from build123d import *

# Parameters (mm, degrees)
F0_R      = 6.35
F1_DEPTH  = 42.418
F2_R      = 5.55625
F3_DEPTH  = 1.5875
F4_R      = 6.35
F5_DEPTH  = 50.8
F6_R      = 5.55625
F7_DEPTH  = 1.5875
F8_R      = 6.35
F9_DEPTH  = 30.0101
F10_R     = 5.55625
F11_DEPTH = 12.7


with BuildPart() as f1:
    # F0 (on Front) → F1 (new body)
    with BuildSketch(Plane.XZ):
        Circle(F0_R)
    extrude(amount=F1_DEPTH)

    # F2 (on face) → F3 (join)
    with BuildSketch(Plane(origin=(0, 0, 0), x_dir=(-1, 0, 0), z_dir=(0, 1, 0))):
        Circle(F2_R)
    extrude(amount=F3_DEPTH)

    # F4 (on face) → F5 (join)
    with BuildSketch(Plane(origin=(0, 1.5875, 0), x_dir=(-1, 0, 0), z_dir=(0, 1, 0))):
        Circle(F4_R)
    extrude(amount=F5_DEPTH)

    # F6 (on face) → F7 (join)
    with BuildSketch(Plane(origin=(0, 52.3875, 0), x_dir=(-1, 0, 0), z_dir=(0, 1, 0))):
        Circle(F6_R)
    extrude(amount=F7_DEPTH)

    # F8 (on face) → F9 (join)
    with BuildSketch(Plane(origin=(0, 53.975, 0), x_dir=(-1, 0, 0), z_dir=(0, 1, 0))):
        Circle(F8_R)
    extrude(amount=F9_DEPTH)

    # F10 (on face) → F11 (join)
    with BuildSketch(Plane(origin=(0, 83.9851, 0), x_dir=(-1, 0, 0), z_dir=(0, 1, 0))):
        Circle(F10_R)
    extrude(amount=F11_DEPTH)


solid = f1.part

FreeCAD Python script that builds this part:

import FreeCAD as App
import Part
import Sketcher
from FreeCAD import Vector
Q = App.Units.Quantity

doc = App.newDocument("Part")
body = doc.addObject("PartDesign::Body", "Body")

# Sketch on XZ plane
sketch1 = doc.addObject("Sketcher::SketchObject", "Sketch")
body.addObject(sketch1)
sketch1.AttachmentSupport = (doc.XZ_Plane, [""])
sketch1.MapMode = "FlatFace"
sketch1.addGeometry(Part.Circle(Vector(0, 0, 0), Vector(0, 0, 1), 6), False)
sketch1.addConstraint([
    Sketcher.Constraint("Coincident", 0, 3, -1, 1),
    Sketcher.Constraint("Diameter", 0, Q("0.5 in")),
])
pad1 = doc.addObject("PartDesign::Pad", "Pad")
body.addObject(pad1)
pad1.Profile = sketch1
pad1.Length = Q("1.67 in")

# Sketch on XZ plane
sketch2 = doc.addObject("Sketcher::SketchObject", "Sketch001")
body.addObject(sketch2)
sketch2.AttachmentSupport = (doc.XZ_Plane, [""])
sketch2.MapMode = "FlatFace"
sketch2.addGeometry(Part.Circle(Vector(0, 0, 0), Vector(0, 0, 1), 6), False)
sketch2.addConstraint([
    Sketcher.Constraint("Coincident", 0, 3, -1, 1),
    Sketcher.Constraint("Diameter", 0, Q("0.4375 in")),
])
pad2 = doc.addObject("PartDesign::Pad", "Pad001")
body.addObject(pad2)
pad2.Profile = sketch2
pad2.Length = Q("0.0625 in")
pad2.Reversed = True

# Sketch on XZ plane
sketch3 = doc.addObject("Sketcher::SketchObject", "Sketch002")
body.addObject(sketch3)
sketch3.AttachmentSupport = (doc.XZ_Plane, [""])
sketch3.MapMode = "FlatFace"
sketch3.AttachmentOffset = App.Placement(Vector(0, 0, -0.0625 * 25.4), App.Rotation())
sketch3.addGeometry(Part.Circle(Vector(0, 0, 0), Vector(0, 0, 1), 6), False)
sketch3.addConstraint([
    Sketcher.Constraint("Coincident", 0, 3, -1, 1),
    Sketcher.Constraint("Diameter", 0, Q("0.5 in")),
])
pad3 = doc.addObject("PartDesign::Pad", "Pad002")
body.addObject(pad3)
pad3.Profile = sketch3
pad3.Length = Q("2 in")
pad3.Reversed = True

# Sketch on XZ plane
sketch4 = doc.addObject("Sketcher::SketchObject", "Sketch003")
body.addObject(sketch4)
sketch4.AttachmentSupport = (doc.XZ_Plane, [""])
sketch4.MapMode = "FlatFace"
sketch4.AttachmentOffset = App.Placement(Vector(0, 0, -2.0625 * 25.4), App.Rotation())
sketch4.addGeometry(Part.Circle(Vector(0, 0, 0), Vector(0, 0, 1), 6), False)
sketch4.addConstraint([
    Sketcher.Constraint("Coincident", 0, 3, -1, 1),
    Sketcher.Constraint("Diameter", 0, Q("0.4375 in")),
])
pad4 = doc.addObject("PartDesign::Pad", "Pad003")
body.addObject(pad4)
pad4.Profile = sketch4
pad4.Length = Q("0.0625 in")
pad4.Reversed = True

# Sketch on XZ plane
sketch5 = doc.addObject("Sketcher::SketchObject", "Sketch004")
body.addObject(sketch5)
sketch5.AttachmentSupport = (doc.XZ_Plane, [""])
sketch5.MapMode = "FlatFace"
sketch5.AttachmentOffset = App.Placement(Vector(0, 0, -2.125 * 25.4), App.Rotation())
sketch5.addGeometry(Part.Circle(Vector(0, 0, 0), Vector(0, 0, 1), 6), False)
sketch5.addConstraint([
    Sketcher.Constraint("Coincident", 0, 3, -1, 1),
    Sketcher.Constraint("Diameter", 0, Q("0.5 in")),
])
pad5 = doc.addObject("PartDesign::Pad", "Pad004")
body.addObject(pad5)
pad5.Profile = sketch5
pad5.Length = Q("1.1815 in")
pad5.Reversed = True

# Sketch on XZ plane
sketch6 = doc.addObject("Sketcher::SketchObject", "Sketch005")
body.addObject(sketch6)
sketch6.AttachmentSupport = (doc.XZ_Plane, [""])
sketch6.MapMode = "FlatFace"
sketch6.AttachmentOffset = App.Placement(Vector(0, 0, -3.3065 * 25.4), App.Rotation())
sketch6.addGeometry(Part.Circle(Vector(0, 0, 0), Vector(0, 0, 1), 6), False)
sketch6.addConstraint([
    Sketcher.Constraint("Coincident", 0, 3, -1, 1),
    Sketcher.Constraint("Diameter", 0, Q("0.4375 in")),
])
pad6 = doc.addObject("PartDesign::Pad", "Pad005")
body.addObject(pad6)
pad6.Profile = sketch6
pad6.Length = Q("0.5 in")
pad6.Reversed = True

doc.recompute()
